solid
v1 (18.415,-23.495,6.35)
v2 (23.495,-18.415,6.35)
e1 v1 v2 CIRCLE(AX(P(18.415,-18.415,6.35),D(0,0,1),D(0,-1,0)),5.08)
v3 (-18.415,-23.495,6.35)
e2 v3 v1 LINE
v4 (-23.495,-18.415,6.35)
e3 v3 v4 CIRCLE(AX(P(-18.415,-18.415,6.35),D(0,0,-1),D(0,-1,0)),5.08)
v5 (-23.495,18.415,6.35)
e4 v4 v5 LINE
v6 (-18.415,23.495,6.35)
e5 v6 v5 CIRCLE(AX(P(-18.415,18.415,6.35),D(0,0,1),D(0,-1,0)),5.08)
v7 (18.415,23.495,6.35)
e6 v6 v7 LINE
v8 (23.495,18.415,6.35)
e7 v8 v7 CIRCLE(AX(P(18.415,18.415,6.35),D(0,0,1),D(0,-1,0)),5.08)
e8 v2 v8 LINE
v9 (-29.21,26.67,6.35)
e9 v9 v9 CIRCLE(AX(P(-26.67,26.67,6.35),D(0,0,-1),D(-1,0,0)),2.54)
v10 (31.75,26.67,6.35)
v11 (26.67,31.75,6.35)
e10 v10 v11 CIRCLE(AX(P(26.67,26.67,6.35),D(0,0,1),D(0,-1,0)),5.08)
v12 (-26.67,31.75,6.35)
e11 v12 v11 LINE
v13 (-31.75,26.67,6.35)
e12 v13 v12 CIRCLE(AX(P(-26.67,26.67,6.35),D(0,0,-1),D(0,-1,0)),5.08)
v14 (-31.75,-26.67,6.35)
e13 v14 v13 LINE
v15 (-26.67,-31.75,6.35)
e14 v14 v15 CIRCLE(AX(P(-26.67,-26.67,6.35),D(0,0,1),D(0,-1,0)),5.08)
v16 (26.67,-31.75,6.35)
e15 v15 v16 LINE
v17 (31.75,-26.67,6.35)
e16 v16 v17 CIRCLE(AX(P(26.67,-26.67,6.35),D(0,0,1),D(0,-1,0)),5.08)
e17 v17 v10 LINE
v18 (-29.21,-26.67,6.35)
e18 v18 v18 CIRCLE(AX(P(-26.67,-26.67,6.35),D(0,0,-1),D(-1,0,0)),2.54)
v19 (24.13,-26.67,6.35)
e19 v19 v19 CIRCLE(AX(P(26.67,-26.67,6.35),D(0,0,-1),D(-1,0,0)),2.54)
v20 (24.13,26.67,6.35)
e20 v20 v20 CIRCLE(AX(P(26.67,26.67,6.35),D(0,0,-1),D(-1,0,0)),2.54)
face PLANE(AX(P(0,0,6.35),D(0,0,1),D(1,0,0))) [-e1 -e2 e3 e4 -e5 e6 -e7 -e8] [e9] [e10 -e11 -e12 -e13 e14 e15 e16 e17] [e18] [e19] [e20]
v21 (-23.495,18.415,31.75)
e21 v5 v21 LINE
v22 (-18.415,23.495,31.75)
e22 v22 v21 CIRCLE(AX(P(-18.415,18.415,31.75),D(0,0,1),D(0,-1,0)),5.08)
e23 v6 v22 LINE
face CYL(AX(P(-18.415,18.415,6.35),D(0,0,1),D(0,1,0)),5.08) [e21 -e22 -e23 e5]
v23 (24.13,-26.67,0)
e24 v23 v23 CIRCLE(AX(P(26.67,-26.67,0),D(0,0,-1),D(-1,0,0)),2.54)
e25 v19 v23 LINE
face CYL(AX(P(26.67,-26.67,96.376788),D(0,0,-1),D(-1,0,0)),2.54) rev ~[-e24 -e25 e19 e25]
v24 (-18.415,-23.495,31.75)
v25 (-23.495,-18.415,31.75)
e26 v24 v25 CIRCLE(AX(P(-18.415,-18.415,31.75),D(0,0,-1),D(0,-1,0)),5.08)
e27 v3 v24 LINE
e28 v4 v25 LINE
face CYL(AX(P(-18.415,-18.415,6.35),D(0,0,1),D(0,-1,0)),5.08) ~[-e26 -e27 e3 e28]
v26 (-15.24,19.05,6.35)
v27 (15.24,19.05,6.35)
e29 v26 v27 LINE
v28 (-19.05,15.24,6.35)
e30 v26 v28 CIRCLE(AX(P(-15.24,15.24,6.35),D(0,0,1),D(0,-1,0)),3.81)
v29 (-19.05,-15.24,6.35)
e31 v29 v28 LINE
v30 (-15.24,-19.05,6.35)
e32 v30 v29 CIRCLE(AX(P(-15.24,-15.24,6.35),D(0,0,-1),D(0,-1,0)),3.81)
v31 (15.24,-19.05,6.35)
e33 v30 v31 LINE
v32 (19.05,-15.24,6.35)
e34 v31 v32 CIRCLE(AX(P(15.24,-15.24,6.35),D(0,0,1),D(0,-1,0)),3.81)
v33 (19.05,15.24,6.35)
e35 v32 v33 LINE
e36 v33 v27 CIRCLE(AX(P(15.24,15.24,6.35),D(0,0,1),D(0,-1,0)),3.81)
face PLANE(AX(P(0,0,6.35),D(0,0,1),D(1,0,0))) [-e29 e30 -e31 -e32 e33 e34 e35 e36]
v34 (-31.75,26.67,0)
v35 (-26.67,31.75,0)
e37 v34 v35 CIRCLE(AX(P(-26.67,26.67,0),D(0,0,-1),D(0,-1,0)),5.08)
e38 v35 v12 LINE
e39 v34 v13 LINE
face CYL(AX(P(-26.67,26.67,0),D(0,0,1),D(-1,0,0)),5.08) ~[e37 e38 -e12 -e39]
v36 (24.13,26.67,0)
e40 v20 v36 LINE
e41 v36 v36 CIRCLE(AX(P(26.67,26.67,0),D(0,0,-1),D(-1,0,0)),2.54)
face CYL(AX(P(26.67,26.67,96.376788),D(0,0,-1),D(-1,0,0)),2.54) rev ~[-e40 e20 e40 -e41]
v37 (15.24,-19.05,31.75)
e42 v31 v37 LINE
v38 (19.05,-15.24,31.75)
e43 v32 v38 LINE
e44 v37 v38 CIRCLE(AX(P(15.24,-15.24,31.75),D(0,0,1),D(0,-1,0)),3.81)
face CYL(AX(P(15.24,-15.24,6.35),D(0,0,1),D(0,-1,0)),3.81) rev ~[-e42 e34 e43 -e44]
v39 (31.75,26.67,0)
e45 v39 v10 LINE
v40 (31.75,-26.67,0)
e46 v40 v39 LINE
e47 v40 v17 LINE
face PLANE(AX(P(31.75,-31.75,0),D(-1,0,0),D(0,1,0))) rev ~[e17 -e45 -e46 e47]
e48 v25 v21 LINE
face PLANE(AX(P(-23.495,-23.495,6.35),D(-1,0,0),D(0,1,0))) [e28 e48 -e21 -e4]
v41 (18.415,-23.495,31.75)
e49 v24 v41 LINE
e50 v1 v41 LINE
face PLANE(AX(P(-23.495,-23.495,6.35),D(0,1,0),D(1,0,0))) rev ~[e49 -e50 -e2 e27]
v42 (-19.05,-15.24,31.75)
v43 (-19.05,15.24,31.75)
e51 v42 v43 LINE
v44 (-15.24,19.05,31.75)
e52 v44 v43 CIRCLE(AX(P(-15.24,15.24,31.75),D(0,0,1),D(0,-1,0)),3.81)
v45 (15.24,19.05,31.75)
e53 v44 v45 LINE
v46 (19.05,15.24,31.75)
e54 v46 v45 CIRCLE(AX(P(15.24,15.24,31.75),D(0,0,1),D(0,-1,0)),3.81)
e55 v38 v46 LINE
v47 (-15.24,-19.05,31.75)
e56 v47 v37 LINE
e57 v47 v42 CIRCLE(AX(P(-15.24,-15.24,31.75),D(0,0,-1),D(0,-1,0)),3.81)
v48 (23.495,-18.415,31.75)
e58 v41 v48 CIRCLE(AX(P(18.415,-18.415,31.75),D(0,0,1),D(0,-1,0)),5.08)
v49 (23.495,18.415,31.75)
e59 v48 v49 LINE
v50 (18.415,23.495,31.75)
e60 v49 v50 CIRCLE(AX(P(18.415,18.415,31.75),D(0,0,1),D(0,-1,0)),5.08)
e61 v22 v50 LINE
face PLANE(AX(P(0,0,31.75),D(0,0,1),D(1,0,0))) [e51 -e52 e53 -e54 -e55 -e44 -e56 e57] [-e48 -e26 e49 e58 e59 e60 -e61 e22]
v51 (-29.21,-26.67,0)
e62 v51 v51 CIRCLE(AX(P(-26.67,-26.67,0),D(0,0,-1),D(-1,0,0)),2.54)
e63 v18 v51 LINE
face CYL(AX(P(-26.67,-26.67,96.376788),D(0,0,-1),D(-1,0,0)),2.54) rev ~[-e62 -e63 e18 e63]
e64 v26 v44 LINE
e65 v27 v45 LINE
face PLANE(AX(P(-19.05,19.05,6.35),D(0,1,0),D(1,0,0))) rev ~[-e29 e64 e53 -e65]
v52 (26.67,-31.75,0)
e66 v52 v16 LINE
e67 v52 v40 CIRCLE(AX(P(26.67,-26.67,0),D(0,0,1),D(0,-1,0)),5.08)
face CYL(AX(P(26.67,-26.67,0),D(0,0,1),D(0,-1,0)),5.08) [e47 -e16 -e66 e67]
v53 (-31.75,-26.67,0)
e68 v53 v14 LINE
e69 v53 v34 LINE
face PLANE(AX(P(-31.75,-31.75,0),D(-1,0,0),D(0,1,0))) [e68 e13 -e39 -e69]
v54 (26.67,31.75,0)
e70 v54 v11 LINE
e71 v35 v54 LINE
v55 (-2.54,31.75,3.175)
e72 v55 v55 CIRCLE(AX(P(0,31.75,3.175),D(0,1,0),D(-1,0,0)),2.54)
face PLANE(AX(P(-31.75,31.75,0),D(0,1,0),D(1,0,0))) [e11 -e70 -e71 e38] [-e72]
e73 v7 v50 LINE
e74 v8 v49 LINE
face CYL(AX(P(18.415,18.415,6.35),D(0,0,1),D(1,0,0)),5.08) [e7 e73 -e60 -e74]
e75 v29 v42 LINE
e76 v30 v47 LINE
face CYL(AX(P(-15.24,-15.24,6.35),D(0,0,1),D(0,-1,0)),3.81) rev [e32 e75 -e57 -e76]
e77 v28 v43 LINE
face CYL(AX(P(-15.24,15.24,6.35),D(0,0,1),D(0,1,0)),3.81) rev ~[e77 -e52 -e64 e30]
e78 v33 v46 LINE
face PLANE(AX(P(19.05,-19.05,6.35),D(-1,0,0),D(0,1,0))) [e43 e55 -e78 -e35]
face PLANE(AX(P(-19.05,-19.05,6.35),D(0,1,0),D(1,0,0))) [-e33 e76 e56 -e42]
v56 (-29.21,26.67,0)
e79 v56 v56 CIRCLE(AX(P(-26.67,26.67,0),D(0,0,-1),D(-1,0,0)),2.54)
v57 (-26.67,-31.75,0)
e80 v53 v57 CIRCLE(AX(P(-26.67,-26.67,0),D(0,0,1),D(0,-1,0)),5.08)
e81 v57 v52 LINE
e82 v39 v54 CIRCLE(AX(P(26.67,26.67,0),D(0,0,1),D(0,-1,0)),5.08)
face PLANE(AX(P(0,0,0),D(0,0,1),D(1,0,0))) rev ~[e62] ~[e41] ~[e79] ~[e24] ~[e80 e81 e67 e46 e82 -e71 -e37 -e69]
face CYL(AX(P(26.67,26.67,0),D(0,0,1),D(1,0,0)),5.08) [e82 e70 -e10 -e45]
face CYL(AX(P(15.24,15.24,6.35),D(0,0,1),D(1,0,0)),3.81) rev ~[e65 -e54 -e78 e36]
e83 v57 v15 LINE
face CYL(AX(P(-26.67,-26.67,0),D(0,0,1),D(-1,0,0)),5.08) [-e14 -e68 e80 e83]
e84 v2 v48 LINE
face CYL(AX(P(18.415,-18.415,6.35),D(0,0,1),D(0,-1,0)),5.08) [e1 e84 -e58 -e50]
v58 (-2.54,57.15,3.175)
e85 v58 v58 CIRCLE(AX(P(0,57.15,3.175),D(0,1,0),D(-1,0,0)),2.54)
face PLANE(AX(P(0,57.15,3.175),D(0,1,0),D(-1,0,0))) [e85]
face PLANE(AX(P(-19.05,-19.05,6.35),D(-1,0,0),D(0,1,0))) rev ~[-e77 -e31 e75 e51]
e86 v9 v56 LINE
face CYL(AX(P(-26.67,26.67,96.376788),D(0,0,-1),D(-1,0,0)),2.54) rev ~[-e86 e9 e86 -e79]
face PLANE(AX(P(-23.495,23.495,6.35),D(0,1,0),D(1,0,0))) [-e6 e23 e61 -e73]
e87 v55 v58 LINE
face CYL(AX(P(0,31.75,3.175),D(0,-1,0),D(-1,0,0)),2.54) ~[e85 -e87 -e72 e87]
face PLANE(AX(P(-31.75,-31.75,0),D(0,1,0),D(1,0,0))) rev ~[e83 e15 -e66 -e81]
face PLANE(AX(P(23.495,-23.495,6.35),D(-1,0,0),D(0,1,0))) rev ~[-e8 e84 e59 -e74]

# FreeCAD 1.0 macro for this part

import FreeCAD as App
import Part
import Sketcher

V = App.Vector
Q = App.Units.Quantity


def edges_at(feature, points):
    """Names of the edges that pass closest to the given points."""
    edges = feature.Shape.Edges
    near = lambda p: min(range(len(edges)), key=lambda i: edges[i].distToShape(Part.Vertex(*p))[0])
    return sorted({f"Edge{near(p) + 1}" for p in points})


def add_polygon(sketch, points):
    """Adds a closed chain of lines whose ends are joined by coincident constraints."""
    first, n = sketch.GeometryCount, len(points)
    for a, b in zip(points, points[1:] + points[:1]):
        sketch.addGeometry(Part.LineSegment(App.Vector(*a, 0), App.Vector(*b, 0)), False)
    for i in range(n):
        sketch.addConstraint(Sketcher.Constraint("Coincident", first + i, 2, first + (i + 1) % n, 1))

doc = App.newDocument("Part")
body = doc.addObject("PartDesign::Body", "Body")

sketch1 = doc.addObject("Sketcher::SketchObject", "Sketch")
body.addObject(sketch1)
sketch1.AttachmentSupport = (doc.XY_Plane, [""])
sketch1.MapMode = "FlatFace"
add_polygon(sketch1, [(-32, 32), (-32, -32), (32, -32), (32, 32)])
sketch1.addConstraint(Sketcher.Constraint("Vertical", 0))
sketch1.addConstraint(Sketcher.Constraint("Horizontal", 1))
sketch1.addConstraint(Sketcher.Constraint("Vertical", 2))
sketch1.addConstraint(Sketcher.Constraint("Horizontal", 3))
sketch1.addConstraint(Sketcher.Constraint("Symmetric", 0, 2, 2, 2, -1, 1))
sketch1.addConstraint(Sketcher.Constraint("Equal", 3, 0))
sketch1.addConstraint(Sketcher.Constraint("DistanceX", 1, 1, 1, 2, Q("2.5 in")))
pad1 = doc.addObject("PartDesign::Pad", "Pad")
body.addObject(pad1)
pad1.Profile = sketch1
pad1.Length = Q("0.25 in")
doc.recompute()

fillet = doc.addObject("PartDesign::Fillet", "Fillet")
body.addObject(fillet)
fillet.Base = (pad1, edges_at(pad1, [
    (-31.75, -31.75, 3.175),
    (31.75, -31.75, 3.175),
    (31.75, 31.75, 3.175),
    (-31.75, 31.75, 3.175),
]))
fillet.Radius = Q("0.2 in")

sketch2 = doc.addObject("Sketcher::SketchObject", "Sketch001")
body.addObject(sketch2)
sketch2.AttachmentSupport = (doc.XY_Plane, [""])
sketch2.MapMode = "FlatFace"
sketch2.AttachmentOffset = App.Placement(V(0, 0, 0.25 * 25.4), App.Rotation())
sketch2.addGeometry(Part.Circle(V(-26.7, 26.7, 0), V(0, 0, 1), 2.5), False)
sketch2.addGeometry(Part.Circle(V(26.7, 26.7, 0), V(0, 0, 1), 2.5), False)
sketch2.addGeometry(Part.Circle(V(26.7, -26.7, 0), V(0, 0, 1), 2.5), False)
sketch2.addGeometry(Part.Circle(V(-26.7, -26.7, 0), V(0, 0, 1), 2.5), False)
sketch2.addConstraint(Sketcher.Constraint("Equal", 0, 1))
sketch2.addConstraint(Sketcher.Constraint("Equal", 1, 2))
sketch2.addConstraint(Sketcher.Constraint("Equal", 2, 3))
sketch2.addConstraint(Sketcher.Constraint("Symmetric", 0, 3, 2, 3, -1, 1))
sketch2.addConstraint(Sketcher.Constraint("Symmetric", 1, 3, 3, 3, -1, 1))
sketch2.addConstraint(Sketcher.Constraint("Symmetric", 0, 3, 1, 3, -2))
sketch2.addConstraint(Sketcher.Constraint("Diameter", 0, Q("0.2 in")))
sketch2.addConstraint(Sketcher.Constraint("DistanceX", 0, 3, 1, 3, Q("2.1 in")))
sketch2.addConstraint(Sketcher.Constraint("DistanceY", 2, 3, 1, 3, Q("2.1 in")))
doc.recompute()
hole = doc.addObject("PartDesign::Hole", "Hole")
body.addObject(hole)
hole.Profile = sketch2
hole.ThreadType = "None"
hole.Diameter = Q("0.2 in")
hole.DepthType = "ThroughAll"

sketch3 = doc.addObject("Sketcher::SketchObject", "Sketch002")
body.addObject(sketch3)
sketch3.AttachmentSupport = (doc.XZ_Plane, [""])
sketch3.MapMode = "FlatFace"
sketch3.AttachmentOffset = App.Placement(V(0, 0, -1.25 * 25.4), App.Rotation())
sketch3.addGeometry(Part.Circle(V(0, 3.2, 0), V(0, 0, 1), 2.5), False)
sketch3.addConstraint(Sketcher.Constraint("PointOnObject", 0, 3, -2))
sketch3.addConstraint(Sketcher.Constraint("Diameter", 0, Q("0.2 in")))
sketch3.addConstraint(Sketcher.Constraint("DistanceY", -1, 1, 0, 3, Q("0.125 in")))
pad2 = doc.addObject("PartDesign::Pad", "Pad001")
body.addObject(pad2)
pad2.Profile = sketch3
pad2.Length = Q("1 in")
pad2.Reversed = True

sketch4 = doc.addObject("Sketcher::SketchObject", "Sketch003")
body.addObject(sketch4)
sketch4.AttachmentSupport = (doc.XY_Plane, [""])
sketch4.MapMode = "FlatFace"
sketch4.AttachmentOffset = App.Placement(V(0, 0, 0.25 * 25.4), App.Rotation())
add_polygon(sketch4, [(-23, 23), (-23, -23), (23, -23), (23, 23)])
add_polygon(sketch4, [(19, -19), (-19, -19), (-19, 19), (19, 19)])
sketch4.addConstraint(Sketcher.Constraint("Vertical", 0))
sketch4.addConstraint(Sketcher.Constraint("Horizontal", 1))
sketch4.addConstraint(Sketcher.Constraint("Vertical", 2))
sketch4.addConstraint(Sketcher.Constraint("Horizontal", 3))
sketch4.addConstraint(Sketcher.Constraint("Horizontal", 4))
sketch4.addConstraint(Sketcher.Constraint("Vertical", 5))
sketch4.addConstraint(Sketcher.Constraint("Horizontal", 6))
sketch4.addConstraint(Sketcher.Constraint("Vertical", 7))
sketch4.addConstraint(Sketcher.Constraint("Symmetric", 0, 2, 2, 2, -1, 1))
sketch4.addConstraint(Sketcher.Constraint("Symmetric", 4, 2, 6, 2, -1, 1))
sketch4.addConstraint(Sketcher.Constraint("Equal", 3, 0))
sketch4.addConstraint(Sketcher.Constraint("Equal", 6, 5))
sketch4.addConstraint(Sketcher.Constraint("DistanceX", 4, 2, 4, 1, Q("1.5 in")))
sketch4.addConstraint(Sketcher.Constraint("DistanceX", 1, 1, 1, 2, Q("1.85 in")))
pad3 = doc.addObject("PartDesign::Pad", "Pad002")
body.addObject(pad3)
pad3.Profile = sketch4
pad3.Length = Q("1 in")
doc.recompute()

fillet2 = doc.addObject("PartDesign::Fillet", "Fillet001")
body.addObject(fillet2)
fillet2.Base = (pad3, edges_at(pad3, [
    (-23.495, -23.495, 19.05),
    (23.495, -23.495, 19.05),
    (23.495, 23.495, 19.05),
    (-23.495, 23.495, 19.05),
]))
fillet2.Radius = Q("0.2 in")
doc.recompute()

fillet3 = doc.addObject("PartDesign::Fillet", "Fillet002")
body.addObject(fillet3)
fillet3.Base = (fillet2, edges_at(fillet2, [
    (19.05, 19.05, 19.05),
    (-19.05, 19.05, 19.05),
    (-19.05, -19.05, 19.05),
    (19.05, -19.05, 19.05),
]))
fillet3.Radius = Q("0.15 in")

doc.recompute()
